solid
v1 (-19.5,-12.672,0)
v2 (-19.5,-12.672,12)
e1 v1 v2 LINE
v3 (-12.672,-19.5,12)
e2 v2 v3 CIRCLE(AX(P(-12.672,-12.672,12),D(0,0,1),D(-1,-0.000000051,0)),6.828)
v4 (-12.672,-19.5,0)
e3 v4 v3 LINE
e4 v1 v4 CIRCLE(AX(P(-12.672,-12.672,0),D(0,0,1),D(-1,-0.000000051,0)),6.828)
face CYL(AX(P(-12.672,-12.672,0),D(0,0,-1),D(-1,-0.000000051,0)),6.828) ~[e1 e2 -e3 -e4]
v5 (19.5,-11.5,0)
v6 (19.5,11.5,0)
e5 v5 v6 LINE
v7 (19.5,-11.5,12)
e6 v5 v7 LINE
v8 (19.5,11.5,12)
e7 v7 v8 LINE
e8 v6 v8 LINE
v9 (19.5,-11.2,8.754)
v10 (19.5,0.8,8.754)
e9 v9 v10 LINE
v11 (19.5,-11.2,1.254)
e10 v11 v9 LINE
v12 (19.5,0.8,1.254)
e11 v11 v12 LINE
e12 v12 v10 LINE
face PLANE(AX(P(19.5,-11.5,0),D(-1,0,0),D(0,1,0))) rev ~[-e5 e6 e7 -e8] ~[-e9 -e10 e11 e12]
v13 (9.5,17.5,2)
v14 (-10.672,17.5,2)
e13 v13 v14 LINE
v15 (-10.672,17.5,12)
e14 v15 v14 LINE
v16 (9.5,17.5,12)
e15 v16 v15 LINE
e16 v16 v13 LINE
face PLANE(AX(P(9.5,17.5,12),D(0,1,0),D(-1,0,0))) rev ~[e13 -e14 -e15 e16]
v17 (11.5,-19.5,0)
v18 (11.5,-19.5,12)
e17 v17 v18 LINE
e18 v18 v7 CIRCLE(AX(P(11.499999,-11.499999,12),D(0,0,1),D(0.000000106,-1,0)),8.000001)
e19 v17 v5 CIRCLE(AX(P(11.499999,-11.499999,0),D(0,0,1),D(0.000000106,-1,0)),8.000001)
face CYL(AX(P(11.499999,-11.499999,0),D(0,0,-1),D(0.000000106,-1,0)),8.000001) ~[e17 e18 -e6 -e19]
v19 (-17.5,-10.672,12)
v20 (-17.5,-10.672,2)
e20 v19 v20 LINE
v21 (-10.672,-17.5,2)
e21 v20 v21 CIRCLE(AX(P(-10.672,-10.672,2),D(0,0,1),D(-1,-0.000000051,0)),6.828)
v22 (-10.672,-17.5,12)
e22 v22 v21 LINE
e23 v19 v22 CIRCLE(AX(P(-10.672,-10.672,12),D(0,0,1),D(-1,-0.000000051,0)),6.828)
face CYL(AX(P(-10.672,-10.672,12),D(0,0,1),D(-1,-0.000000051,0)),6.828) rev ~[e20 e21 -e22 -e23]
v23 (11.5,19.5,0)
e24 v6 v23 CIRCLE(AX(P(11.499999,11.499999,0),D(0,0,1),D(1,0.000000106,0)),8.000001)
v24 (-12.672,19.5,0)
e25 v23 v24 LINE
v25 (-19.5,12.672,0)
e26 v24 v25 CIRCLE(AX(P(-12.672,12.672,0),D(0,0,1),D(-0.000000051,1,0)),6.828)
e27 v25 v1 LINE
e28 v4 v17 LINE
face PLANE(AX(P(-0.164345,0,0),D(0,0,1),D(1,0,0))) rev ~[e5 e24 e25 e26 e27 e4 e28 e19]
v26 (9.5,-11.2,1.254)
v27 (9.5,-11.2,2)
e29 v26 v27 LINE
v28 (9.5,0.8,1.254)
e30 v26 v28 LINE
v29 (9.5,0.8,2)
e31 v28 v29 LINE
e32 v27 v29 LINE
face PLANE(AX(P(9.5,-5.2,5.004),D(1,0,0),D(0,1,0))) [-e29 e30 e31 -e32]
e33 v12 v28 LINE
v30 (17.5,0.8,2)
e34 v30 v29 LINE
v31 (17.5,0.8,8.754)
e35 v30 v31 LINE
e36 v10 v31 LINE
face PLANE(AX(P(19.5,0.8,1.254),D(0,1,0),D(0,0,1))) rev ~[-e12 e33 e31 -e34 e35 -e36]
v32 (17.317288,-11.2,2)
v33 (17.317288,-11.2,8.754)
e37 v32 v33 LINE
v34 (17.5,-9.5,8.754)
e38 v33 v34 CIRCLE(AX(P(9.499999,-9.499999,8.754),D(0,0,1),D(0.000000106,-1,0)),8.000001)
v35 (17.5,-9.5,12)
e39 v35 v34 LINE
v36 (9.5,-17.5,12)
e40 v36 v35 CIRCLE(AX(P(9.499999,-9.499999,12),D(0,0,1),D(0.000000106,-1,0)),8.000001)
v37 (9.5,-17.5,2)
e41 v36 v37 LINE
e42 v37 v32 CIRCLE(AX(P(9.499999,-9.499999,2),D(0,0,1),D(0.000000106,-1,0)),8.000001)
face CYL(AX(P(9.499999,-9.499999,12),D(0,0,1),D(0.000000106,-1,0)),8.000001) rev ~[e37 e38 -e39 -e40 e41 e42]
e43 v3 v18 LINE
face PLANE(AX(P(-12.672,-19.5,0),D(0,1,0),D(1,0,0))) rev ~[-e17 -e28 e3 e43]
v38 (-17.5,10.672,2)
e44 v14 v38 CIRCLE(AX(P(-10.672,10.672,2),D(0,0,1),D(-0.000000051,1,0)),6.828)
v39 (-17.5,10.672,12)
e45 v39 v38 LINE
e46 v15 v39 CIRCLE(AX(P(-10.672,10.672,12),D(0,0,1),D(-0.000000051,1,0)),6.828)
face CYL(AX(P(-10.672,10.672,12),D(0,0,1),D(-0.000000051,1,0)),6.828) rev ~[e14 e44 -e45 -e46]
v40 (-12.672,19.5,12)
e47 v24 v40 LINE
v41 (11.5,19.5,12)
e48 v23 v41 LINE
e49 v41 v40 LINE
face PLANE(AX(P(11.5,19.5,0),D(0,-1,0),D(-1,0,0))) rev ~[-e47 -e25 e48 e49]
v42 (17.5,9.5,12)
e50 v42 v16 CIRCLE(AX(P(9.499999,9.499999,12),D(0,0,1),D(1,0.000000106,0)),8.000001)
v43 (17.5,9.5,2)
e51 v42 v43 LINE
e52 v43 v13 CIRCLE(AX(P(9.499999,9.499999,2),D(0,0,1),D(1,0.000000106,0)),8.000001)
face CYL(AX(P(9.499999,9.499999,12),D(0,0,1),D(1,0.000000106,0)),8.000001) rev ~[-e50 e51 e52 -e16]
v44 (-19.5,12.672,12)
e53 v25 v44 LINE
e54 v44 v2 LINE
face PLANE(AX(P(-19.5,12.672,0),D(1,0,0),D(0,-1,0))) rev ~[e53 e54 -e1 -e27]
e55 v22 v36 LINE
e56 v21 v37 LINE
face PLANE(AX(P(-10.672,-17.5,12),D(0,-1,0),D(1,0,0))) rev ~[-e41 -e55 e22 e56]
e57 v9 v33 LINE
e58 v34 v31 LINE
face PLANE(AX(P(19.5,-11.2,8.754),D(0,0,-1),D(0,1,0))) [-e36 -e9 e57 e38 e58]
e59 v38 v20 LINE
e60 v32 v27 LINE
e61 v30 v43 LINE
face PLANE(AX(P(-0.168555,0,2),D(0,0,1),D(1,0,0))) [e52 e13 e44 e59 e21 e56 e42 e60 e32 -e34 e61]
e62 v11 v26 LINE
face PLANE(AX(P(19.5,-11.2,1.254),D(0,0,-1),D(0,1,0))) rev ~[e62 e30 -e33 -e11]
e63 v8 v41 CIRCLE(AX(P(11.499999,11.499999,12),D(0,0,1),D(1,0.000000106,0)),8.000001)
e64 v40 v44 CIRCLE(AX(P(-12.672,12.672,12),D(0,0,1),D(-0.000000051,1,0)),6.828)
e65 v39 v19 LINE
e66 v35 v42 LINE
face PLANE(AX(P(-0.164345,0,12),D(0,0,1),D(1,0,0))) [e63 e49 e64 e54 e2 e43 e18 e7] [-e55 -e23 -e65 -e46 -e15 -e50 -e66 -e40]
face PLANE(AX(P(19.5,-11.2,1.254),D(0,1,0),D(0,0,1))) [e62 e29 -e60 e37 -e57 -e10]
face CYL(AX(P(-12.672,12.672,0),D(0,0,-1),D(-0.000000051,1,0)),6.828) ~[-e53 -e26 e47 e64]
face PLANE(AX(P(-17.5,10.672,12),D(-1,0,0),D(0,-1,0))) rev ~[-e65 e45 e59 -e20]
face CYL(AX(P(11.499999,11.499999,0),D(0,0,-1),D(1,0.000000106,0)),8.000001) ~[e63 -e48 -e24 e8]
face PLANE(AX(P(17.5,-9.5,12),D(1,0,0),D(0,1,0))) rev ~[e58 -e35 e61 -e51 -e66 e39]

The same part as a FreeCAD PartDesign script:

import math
import FreeCAD as App
import Part
import Sketcher
Q = App.Units.Quantity


def add_polygon(sketch, points):
    """Adds a closed chain of lines whose ends are joined by coincident constraints."""
    first, n = sketch.GeometryCount, len(points)
    for a, b in zip(points, points[1:] + points[:1]):
        sketch.addGeometry(Part.LineSegment(App.Vector(*a, 0), App.Vector(*b, 0)), False)
    for i in range(n):
        sketch.addConstraint(Sketcher.Constraint("Coincident", first + i, 2, first + (i + 1) % n, 1))

doc = App.newDocument("Part")
params = doc.addObject("Spreadsheet::Sheet", "Params")
for row, (alias, value) in enumerate([
    ("sketch1_radius", "8.000001 mm"),
    ("sketch1_height", "23 mm"),
    ("pad1_length", "12 mm"),
    ("sketch2_radius", "8.000001 mm"),
    ("sketch2_height", "19 mm"),
    ("pocket1_length", "10 mm"),
    ("sketch3_width", "12 mm"),
    ("sketch3_height", "7.5 mm"),
    ("pocket2_length", "10 mm"),
], start=1):
    params.set(f"A{row}", alias)
    params.set(f"B{row}", "=" + value)
    params.setAlias(f"B{row}", alias)

body = doc.addObject("PartDesign::Body", "Body")

sketch1 = body.newObject("Sketcher::SketchObject", "Sketch")
sketch1.AttachmentSupport = (doc.getObject("XY_Plane"), [""])
sketch1.MapMode = "FlatFace"
sketch1.addGeometry(Part.LineSegment(App.Vector(-12.672, -19.5, 0), App.Vector(11.5, -19.5, 0)), False)
sketch1.addGeometry(Part.ArcOfCircle(Part.Circle(App.Vector(11.499999, -11.499999, 0), App.Vector(0, 0, 1), 8.000001), math.radians(-89.999994), math.radians(-0.000006)), False)
sketch1.addGeometry(Part.LineSegment(App.Vector(19.5, -11.5, 0), App.Vector(19.5, 11.5, 0)), False)
sketch1.addGeometry(Part.ArcOfCircle(Part.Circle(App.Vector(11.499999, 11.499999, 0), App.Vector(0, 0, 1), 8.000001), math.radians(0.000006), math.radians(89.999994)), False)
sketch1.addGeometry(Part.LineSegment(App.Vector(11.5, 19.5, 0), App.Vector(-12.672, 19.5, 0)), False)
sketch1.addGeometry(Part.ArcOfCircle(Part.Circle(App.Vector(-12.672, 12.672, 0), App.Vector(0, 0, 1), 6.828), math.radians(90.000003), math.radians(179.999997)), False)
sketch1.addGeometry(Part.LineSegment(App.Vector(-19.5, 12.672, 0), App.Vector(-19.5, -12.672, 0)), False)
sketch1.addGeometry(Part.ArcOfCircle(Part.Circle(App.Vector(-12.672, -12.672, 0), App.Vector(0, 0, 1), 6.828), math.radians(-179.999997), math.radians(-90.000003)), False)
sketch1.addConstraint(Sketcher.Constraint("Tangent", 0, 2, 1, 1))
sketch1.addConstraint(Sketcher.Constraint("Tangent", 1, 2, 2, 1))
sketch1.addConstraint(Sketcher.Constraint("Tangent", 2, 2, 3, 1))
sketch1.addConstraint(Sketcher.Constraint("Tangent", 3, 2, 4, 1))
sketch1.addConstraint(Sketcher.Constraint("Tangent", 4, 2, 5, 1))
sketch1.addConstraint(Sketcher.Constraint("Tangent", 5, 2, 6, 1))
sketch1.addConstraint(Sketcher.Constraint("Tangent", 6, 2, 7, 1))
sketch1.addConstraint(Sketcher.Constraint("Tangent", 7, 2, 0, 1))
sketch1.addConstraint(Sketcher.Constraint("Horizontal", 0))
sketch1.addConstraint(Sketcher.Constraint("Vertical", 2))
sketch1.addConstraint(Sketcher.Constraint("Horizontal", 4))
sketch1.addConstraint(Sketcher.Constraint("Vertical", 6))
sketch1.addConstraint(Sketcher.Constraint("Equal", 1, 3))
sketch1.addConstraint(Sketcher.Constraint("Equal", 5, 7))
sketch1.addConstraint(Sketcher.Constraint("Radius", 1, Q("8.000001 mm")))
sketch1.addConstraint(Sketcher.Constraint("DistanceY", 2, 1, 2, 2, Q("23 mm")))
sketch1.addConstraint(Sketcher.Constraint("Radius", 5, Q("6.828 mm")))
sketch1.addConstraint(Sketcher.Constraint("DistanceX", 5, 2, 3, 3, Q("30.999999 mm")))
sketch1.addConstraint(Sketcher.Constraint("DistanceX", -1, 1, 1, 3, Q("11.499999 mm")))
sketch1.addConstraint(Sketcher.Constraint("DistanceY", 1, 3, -1, 1, Q("11.499999 mm")))
sketch1.setExpression("Constraints[14]", "Params.sketch1_radius")
sketch1.setExpression("Constraints[15]", "Params.sketch1_height")
pad1 = body.newObject("PartDesign::Pad", "Pad")
pad1.Profile = sketch1
pad1.setExpression("Length", "Params.pad1_length")

sketch2 = body.newObject("Sketcher::SketchObject", "Sketch001")
sketch2.AttachmentSupport = (doc.getObject("XY_Plane"), [""])
sketch2.MapMode = "FlatFace"
sketch2.AttachmentOffset = App.Placement(App.Vector(0, 0, 12), App.Rotation())
sketch2.addGeometry(Part.LineSegment(App.Vector(-10.672, -17.5, 0), App.Vector(9.5, -17.5, 0)), False)
sketch2.addGeometry(Part.ArcOfCircle(Part.Circle(App.Vector(9.499999, -9.499999, 0), App.Vector(0, 0, 1), 8.000001), math.radians(-89.999994), math.radians(-0.000006)), False)
sketch2.addGeometry(Part.LineSegment(App.Vector(17.5, -9.5, 0), App.Vector(17.5, 9.5, 0)), False)
sketch2.addGeometry(Part.ArcOfCircle(Part.Circle(App.Vector(9.499999, 9.499999, 0), App.Vector(0, 0, 1), 8.000001), math.radians(0.000006), math.radians(89.999994)), False)
sketch2.addGeometry(Part.LineSegment(App.Vector(9.5, 17.5, 0), App.Vector(-10.672, 17.5, 0)), False)
sketch2.addGeometry(Part.ArcOfCircle(Part.Circle(App.Vector(-10.672, 10.672, 0), App.Vector(0, 0, 1), 6.828), math.radians(90.000003), math.radians(179.999997)), False)
sketch2.addGeometry(Part.LineSegment(App.Vector(-17.5, 10.672, 0), App.Vector(-17.5, -10.672, 0)), False)
sketch2.addGeometry(Part.ArcOfCircle(Part.Circle(App.Vector(-10.672, -10.672, 0), App.Vector(0, 0, 1), 6.828), math.radians(-179.999997), math.radians(-90.000003)), False)
sketch2.addConstraint(Sketcher.Constraint("Tangent", 0, 2, 1, 1))
sketch2.addConstraint(Sketcher.Constraint("Tangent", 1, 2, 2, 1))
sketch2.addConstraint(Sketcher.Constraint("Tangent", 2, 2, 3, 1))
sketch2.addConstraint(Sketcher.Constraint("Tangent", 3, 2, 4, 1))
sketch2.addConstraint(Sketcher.Constraint("Tangent", 4, 2, 5, 1))
sketch2.addConstraint(Sketcher.Constraint("Tangent", 5, 2, 6, 1))
sketch2.addConstraint(Sketcher.Constraint("Tangent", 6, 2, 7, 1))
sketch2.addConstraint(Sketcher.Constraint("Tangent", 7, 2, 0, 1))
sketch2.addConstraint(Sketcher.Constraint("Horizontal", 0))
sketch2.addConstraint(Sketcher.Constraint("Vertical", 2))
sketch2.addConstraint(Sketcher.Constraint("Horizontal", 4))
sketch2.addConstraint(Sketcher.Constraint("Vertical", 6))
sketch2.addConstraint(Sketcher.Constraint("Equal", 1, 3))
sketch2.addConstraint(Sketcher.Constraint("Equal", 5, 7))
sketch2.addConstraint(Sketcher.Constraint("Radius", 1, Q("8.000001 mm")))
sketch2.addConstraint(Sketcher.Constraint("DistanceY", 2, 1, 2, 2, Q("19 mm")))
sketch2.addConstraint(Sketcher.Constraint("Radius", 5, Q("6.828 mm")))
sketch2.addConstraint(Sketcher.Constraint("DistanceX", 5, 2, 3, 3, Q("26.999999 mm")))
sketch2.addConstraint(Sketcher.Constraint("DistanceX", -1, 1, 1, 3, Q("9.499999 mm")))
sketch2.addConstraint(Sketcher.Constraint("DistanceY", 1, 3, -1, 1, Q("9.499999 mm")))
sketch2.setExpression("Constraints[14]", "Params.sketch2_radius")
sketch2.setExpression("Constraints[15]", "Params.sketch2_height")
pocket1 = body.newObject("PartDesign::Pocket", "Pocket")
pocket1.Profile = sketch2
pocket1.setExpression("Length", "Params.pocket1_length")

sketch3 = body.newObject("Sketcher::SketchObject", "Sketch002")
sketch3.AttachmentSupport = (doc.getObject("YZ_Plane"), [""])
sketch3.MapMode = "FlatFace"
sketch3.AttachmentOffset = App.Placement(App.Vector(0, 0, 19.5), App.Rotation())
add_polygon(sketch3, [(-11.2, 8.754), (-11.2, 1.254), (0.8, 1.254), (0.8, 8.754)])
sketch3.addConstraint(Sketcher.Constraint("Vertical", 0))
sketch3.addConstraint(Sketcher.Constraint("Horizontal", 1))
sketch3.addConstraint(Sketcher.Constraint("Vertical", 2))
sketch3.addConstraint(Sketcher.Constraint("Horizontal", 3))
sketch3.addConstraint(Sketcher.Constraint("DistanceX", 1, 1, 1, 2, Q("12 mm")))
sketch3.addConstraint(Sketcher.Constraint("DistanceY", 0, 2, 0, 1, Q("7.5 mm")))
sketch3.addConstraint(Sketcher.Constraint("DistanceX", 0, 2, -1, 1, Q("11.2 mm")))
sketch3.addConstraint(Sketcher.Constraint("DistanceY", -1, 1, 0, 2, Q("1.254 mm")))
sketch3.setExpression("Constraints[8]", "Params.sketch3_width")
sketch3.setExpression("Constraints[9]", "Params.sketch3_height")
pocket2 = body.newObject("PartDesign::Pocket", "Pocket001")
pocket2.Profile = sketch3
pocket2.setExpression("Length", "Params.pocket2_length")

doc.recompute()
